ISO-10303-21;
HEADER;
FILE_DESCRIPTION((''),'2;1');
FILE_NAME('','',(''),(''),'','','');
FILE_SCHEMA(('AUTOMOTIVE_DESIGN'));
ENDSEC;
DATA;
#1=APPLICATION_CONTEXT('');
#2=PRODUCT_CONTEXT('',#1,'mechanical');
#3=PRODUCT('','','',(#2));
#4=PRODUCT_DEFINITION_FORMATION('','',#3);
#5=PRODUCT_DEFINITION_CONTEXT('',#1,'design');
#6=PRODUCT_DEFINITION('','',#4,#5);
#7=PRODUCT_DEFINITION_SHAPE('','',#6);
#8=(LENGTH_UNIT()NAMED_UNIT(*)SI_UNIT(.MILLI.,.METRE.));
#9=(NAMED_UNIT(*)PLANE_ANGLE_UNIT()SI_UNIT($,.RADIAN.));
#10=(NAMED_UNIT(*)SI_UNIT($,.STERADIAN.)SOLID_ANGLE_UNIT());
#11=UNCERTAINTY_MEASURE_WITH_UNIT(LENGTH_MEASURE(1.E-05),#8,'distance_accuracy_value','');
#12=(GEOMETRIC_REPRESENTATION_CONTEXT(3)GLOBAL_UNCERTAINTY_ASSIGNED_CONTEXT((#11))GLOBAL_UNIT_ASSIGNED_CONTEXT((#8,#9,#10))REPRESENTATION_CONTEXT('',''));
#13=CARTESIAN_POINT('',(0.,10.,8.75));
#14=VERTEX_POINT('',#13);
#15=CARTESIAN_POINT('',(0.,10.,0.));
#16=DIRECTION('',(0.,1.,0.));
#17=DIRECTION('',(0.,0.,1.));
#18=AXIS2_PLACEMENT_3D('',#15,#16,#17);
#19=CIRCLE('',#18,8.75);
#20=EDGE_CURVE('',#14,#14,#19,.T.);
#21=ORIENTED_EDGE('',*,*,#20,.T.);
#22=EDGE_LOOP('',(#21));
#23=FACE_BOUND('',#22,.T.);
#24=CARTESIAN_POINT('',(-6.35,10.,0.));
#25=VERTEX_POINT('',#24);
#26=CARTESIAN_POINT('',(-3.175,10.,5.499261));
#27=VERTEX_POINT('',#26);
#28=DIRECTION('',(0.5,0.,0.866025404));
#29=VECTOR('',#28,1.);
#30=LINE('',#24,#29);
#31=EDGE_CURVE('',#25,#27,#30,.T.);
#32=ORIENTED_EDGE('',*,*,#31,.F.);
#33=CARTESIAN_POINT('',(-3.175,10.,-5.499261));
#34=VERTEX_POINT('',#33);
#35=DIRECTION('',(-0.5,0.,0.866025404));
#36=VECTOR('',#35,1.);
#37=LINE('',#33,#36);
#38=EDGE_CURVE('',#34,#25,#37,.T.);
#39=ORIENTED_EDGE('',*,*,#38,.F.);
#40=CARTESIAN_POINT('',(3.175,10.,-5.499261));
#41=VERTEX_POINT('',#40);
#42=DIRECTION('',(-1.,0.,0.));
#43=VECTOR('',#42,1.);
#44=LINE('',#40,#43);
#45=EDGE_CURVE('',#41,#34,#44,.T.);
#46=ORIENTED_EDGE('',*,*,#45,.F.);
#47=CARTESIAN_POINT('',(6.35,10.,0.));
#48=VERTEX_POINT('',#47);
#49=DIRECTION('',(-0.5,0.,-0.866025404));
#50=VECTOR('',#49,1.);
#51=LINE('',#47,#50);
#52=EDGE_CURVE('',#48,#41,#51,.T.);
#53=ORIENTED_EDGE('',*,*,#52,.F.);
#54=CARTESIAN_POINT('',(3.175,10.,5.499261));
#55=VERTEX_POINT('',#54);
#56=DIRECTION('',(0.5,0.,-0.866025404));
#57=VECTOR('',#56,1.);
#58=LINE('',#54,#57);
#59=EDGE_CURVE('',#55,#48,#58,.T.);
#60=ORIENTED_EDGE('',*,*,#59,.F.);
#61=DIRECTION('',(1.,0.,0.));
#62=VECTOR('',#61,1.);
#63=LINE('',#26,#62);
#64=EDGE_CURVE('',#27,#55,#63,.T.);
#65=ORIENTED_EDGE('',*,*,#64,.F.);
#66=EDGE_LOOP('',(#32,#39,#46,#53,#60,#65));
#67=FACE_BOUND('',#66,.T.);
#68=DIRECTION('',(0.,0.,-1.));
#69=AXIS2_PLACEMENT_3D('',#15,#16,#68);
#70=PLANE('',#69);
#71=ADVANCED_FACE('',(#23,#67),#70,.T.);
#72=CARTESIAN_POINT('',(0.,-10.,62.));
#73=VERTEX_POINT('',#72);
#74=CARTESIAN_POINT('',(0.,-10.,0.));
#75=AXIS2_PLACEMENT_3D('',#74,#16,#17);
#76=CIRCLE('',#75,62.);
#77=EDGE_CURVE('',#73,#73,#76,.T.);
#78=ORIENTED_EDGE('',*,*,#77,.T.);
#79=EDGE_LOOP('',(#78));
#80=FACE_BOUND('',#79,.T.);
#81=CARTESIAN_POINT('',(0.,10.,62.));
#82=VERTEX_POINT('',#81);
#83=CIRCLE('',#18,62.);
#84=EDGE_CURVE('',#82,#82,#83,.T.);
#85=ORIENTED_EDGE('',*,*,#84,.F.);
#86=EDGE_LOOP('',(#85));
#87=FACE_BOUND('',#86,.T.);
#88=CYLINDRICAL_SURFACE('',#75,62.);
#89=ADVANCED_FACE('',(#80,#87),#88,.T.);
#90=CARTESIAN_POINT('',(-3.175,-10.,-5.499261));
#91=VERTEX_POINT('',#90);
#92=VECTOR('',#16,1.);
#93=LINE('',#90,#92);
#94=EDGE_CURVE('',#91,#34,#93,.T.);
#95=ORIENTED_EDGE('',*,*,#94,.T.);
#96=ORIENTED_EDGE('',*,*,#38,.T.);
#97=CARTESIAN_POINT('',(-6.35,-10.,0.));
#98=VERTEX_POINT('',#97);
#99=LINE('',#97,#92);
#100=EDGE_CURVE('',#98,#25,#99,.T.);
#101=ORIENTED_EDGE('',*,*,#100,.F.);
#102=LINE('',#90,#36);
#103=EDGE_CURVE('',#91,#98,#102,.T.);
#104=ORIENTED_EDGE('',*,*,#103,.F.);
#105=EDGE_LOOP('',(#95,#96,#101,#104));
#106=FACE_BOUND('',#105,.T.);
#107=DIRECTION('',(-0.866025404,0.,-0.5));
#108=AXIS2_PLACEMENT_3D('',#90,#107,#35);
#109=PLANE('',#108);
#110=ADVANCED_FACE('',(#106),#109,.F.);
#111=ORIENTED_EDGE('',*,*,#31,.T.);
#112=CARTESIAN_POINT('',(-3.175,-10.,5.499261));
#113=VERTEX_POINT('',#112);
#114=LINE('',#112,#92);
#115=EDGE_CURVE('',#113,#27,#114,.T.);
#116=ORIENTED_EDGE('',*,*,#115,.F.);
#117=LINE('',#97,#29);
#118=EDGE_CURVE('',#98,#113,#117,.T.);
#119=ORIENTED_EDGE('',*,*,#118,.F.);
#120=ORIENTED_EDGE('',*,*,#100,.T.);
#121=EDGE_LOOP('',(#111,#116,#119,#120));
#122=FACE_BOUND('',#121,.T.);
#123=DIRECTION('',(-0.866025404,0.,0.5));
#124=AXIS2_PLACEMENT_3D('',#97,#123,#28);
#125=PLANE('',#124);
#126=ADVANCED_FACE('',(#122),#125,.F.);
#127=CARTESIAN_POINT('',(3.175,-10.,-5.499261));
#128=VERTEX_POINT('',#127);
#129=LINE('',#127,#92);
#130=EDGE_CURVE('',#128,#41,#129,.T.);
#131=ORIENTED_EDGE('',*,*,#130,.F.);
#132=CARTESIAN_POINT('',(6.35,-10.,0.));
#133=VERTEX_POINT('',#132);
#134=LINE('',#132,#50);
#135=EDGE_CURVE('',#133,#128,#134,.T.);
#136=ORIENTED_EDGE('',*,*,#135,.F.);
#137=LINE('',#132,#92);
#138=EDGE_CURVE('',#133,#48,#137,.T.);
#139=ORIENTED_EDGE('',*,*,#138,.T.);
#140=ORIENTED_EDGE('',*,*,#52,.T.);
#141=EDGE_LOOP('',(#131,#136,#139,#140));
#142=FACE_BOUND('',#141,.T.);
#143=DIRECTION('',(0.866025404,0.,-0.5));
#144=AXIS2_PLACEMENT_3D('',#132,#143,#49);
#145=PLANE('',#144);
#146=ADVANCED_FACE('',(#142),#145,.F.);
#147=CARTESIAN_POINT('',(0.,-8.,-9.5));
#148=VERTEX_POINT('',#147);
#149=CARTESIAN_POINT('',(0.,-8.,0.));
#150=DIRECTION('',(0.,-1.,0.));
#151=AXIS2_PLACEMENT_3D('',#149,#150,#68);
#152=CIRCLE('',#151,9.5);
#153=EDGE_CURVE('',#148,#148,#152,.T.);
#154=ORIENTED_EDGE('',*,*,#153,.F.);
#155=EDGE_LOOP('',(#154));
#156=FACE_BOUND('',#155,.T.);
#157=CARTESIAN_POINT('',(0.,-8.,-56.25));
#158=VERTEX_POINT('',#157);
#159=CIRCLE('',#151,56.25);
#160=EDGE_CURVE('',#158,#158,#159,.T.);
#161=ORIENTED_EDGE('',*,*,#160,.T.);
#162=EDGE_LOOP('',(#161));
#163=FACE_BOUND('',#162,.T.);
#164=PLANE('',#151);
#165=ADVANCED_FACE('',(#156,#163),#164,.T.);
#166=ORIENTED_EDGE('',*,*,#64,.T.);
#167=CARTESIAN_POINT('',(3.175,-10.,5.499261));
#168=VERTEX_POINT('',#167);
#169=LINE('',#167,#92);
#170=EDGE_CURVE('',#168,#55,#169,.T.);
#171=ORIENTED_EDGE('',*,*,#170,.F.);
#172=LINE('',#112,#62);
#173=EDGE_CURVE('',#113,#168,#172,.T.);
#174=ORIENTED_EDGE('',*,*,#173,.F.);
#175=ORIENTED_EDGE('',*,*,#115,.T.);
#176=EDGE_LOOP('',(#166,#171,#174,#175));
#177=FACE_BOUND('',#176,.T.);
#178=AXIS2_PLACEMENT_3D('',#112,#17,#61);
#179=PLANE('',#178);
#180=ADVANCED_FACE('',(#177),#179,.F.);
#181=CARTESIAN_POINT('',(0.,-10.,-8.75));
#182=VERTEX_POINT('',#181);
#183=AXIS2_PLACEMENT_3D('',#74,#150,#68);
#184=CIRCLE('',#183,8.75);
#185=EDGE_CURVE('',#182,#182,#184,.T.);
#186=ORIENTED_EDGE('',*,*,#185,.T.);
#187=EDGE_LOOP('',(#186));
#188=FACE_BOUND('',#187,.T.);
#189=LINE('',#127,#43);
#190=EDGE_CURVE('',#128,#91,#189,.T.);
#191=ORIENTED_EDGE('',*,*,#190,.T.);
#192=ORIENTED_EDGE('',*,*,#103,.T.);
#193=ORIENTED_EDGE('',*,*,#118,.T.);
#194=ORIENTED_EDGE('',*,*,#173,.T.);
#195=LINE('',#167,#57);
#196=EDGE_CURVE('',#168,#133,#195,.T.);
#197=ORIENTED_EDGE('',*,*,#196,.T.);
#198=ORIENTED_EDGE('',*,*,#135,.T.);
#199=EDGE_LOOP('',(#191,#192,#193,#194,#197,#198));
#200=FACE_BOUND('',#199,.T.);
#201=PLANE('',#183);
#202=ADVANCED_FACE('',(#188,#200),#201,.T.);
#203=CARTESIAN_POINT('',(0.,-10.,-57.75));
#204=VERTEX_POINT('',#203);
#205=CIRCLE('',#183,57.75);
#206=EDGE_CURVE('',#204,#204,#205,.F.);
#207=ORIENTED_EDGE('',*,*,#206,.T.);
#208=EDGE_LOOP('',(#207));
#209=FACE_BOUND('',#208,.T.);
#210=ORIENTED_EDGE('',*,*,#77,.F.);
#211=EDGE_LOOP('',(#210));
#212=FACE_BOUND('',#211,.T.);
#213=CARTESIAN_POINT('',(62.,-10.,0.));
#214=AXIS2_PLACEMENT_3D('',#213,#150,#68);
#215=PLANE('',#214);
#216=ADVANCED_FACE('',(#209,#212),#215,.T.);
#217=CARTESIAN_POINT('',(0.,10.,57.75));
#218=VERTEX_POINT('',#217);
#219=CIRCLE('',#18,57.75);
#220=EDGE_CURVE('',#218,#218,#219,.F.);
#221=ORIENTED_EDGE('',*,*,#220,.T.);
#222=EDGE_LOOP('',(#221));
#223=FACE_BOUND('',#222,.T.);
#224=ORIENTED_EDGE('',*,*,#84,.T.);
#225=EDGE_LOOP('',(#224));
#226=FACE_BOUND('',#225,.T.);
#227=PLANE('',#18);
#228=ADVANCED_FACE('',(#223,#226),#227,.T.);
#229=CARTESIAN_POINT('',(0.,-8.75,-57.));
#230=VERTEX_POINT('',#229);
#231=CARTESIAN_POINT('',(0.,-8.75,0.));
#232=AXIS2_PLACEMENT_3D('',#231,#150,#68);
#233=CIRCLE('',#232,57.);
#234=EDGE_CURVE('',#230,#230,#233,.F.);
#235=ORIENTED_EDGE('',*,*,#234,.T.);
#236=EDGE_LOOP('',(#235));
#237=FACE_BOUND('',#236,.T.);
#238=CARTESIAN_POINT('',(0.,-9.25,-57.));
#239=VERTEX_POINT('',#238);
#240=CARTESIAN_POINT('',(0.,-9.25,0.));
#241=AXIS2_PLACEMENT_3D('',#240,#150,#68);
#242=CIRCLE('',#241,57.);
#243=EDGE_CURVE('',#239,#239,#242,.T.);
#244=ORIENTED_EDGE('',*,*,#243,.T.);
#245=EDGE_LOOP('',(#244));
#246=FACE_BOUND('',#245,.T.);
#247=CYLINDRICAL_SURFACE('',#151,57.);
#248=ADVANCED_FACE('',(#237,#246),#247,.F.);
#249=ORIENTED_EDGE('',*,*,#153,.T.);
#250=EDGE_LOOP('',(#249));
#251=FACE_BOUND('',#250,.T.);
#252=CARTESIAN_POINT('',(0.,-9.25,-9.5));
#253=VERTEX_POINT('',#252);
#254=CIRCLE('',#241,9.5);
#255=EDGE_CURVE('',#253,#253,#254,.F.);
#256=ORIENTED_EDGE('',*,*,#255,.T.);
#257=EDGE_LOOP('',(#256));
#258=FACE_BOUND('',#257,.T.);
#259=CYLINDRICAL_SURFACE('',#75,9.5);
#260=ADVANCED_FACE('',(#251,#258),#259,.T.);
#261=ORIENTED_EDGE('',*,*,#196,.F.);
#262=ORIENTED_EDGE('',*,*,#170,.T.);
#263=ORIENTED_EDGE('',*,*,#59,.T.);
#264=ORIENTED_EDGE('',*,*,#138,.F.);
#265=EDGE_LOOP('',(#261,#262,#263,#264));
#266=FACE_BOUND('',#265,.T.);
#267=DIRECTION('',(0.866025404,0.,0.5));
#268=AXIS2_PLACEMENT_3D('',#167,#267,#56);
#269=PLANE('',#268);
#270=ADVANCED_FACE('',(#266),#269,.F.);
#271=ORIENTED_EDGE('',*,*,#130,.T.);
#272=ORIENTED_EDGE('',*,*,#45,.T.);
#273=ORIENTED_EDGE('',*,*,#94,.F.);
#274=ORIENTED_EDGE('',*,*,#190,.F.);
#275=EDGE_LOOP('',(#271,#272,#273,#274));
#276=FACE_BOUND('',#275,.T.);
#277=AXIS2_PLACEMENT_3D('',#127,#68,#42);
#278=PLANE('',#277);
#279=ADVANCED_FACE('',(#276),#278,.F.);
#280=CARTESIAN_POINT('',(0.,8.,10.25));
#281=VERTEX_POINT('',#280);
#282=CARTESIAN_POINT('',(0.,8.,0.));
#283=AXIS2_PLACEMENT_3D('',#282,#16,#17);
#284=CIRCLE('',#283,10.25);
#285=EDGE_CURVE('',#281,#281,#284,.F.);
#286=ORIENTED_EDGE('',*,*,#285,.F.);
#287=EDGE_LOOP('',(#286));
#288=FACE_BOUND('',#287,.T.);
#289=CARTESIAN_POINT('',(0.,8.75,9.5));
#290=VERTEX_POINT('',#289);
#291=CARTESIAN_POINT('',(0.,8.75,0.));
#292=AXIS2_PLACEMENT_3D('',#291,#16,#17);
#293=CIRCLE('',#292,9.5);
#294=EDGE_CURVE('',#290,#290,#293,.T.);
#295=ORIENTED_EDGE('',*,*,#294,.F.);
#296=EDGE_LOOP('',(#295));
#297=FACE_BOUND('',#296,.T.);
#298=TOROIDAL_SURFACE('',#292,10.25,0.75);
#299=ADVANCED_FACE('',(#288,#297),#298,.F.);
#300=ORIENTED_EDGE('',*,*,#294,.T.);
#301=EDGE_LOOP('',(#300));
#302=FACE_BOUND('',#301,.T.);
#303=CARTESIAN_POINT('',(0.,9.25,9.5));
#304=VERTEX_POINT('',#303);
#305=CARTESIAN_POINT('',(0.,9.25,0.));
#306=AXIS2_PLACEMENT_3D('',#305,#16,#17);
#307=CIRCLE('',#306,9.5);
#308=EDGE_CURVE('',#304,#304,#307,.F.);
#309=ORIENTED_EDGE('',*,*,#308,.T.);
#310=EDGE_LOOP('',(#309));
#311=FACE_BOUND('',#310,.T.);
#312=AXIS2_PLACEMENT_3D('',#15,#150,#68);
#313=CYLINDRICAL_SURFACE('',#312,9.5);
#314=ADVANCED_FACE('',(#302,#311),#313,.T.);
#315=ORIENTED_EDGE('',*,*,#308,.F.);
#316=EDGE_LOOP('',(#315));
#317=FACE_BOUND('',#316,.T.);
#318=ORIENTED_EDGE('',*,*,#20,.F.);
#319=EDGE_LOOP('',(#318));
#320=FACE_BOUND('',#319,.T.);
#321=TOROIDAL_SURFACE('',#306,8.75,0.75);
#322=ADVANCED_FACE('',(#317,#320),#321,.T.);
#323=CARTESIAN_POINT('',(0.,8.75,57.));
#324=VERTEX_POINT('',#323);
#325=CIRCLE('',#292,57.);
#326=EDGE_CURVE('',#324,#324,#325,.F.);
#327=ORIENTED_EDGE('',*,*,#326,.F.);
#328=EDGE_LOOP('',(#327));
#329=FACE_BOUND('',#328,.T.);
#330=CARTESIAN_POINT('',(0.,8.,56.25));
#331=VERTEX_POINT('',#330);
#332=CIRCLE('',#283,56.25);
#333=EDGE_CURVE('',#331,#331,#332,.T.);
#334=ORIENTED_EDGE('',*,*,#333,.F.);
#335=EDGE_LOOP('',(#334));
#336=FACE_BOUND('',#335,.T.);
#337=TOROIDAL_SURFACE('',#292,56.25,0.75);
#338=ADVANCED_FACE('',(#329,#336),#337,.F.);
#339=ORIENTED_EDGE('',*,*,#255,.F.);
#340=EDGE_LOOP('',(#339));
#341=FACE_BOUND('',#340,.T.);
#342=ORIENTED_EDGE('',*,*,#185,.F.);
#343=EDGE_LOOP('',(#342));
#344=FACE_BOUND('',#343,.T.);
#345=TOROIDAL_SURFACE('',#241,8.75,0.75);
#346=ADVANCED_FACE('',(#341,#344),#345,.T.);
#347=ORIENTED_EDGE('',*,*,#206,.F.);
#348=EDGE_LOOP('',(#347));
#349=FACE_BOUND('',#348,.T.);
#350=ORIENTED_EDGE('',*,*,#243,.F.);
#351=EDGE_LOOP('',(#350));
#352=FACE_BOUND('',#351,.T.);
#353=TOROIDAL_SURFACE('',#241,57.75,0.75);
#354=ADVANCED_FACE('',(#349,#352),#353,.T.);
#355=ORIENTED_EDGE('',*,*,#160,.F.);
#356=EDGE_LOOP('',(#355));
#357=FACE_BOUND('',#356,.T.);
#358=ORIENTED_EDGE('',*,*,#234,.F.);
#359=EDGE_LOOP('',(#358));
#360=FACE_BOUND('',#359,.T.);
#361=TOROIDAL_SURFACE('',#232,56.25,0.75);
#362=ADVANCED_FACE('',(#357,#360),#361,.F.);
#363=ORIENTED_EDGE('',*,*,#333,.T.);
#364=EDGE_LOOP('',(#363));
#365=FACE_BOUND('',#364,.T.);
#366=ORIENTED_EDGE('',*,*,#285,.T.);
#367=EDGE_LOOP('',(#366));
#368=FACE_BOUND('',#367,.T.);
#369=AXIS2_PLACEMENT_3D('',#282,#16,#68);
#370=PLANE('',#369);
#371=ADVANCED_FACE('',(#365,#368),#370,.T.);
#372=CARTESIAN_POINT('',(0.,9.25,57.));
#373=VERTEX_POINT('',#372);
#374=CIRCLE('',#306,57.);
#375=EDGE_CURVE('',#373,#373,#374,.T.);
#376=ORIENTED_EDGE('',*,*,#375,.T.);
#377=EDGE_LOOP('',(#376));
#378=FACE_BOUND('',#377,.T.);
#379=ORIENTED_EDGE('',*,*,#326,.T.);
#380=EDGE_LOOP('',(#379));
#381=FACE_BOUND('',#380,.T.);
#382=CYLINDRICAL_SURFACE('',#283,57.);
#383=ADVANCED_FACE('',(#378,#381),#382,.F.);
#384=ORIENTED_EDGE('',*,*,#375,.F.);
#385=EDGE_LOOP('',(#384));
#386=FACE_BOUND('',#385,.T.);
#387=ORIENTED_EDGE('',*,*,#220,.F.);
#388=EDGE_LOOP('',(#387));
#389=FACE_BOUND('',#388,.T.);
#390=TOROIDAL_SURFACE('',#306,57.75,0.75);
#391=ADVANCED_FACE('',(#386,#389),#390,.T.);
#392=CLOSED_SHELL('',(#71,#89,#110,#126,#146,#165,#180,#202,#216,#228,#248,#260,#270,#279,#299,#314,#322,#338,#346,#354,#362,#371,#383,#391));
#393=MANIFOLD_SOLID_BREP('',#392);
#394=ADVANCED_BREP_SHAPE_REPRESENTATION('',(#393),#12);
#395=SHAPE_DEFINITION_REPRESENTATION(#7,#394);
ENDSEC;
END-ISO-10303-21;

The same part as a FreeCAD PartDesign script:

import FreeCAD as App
import Part
import Sketcher
Q = App.Units.Quantity


def edges_at(feature, points):
    """Names of the edges that pass closest to the given points."""
    edges = feature.Shape.Edges
    near = lambda p: min(range(len(edges)), key=lambda i: edges[i].distToShape(Part.Vertex(*p))[0])
    return sorted({f"Edge{near(p) + 1}" for p in points})


def add_polygon(sketch, points):
    """Adds a closed chain of lines whose ends are joined by coincident constraints."""
    first, n = sketch.GeometryCount, len(points)
    for a, b in zip(points, points[1:] + points[:1]):
        sketch.addGeometry(Part.LineSegment(App.Vector(*a, 0), App.Vector(*b, 0)), False)
    for i in range(n):
        sketch.addConstraint(Sketcher.Constraint("Coincident", first + i, 2, first + (i + 1) % n, 1))

doc = App.newDocument("Part")
body = doc.addObject("PartDesign::Body", "Body")

# Sketch on XY plane
sketch1 = body.newObject("Sketcher::SketchObject", "Sketch")
sketch1.AttachmentSupport = (doc.getObject("XY_Plane"), [""])
sketch1.MapMode = "FlatFace"
add_polygon(sketch1, [(62, 10), (62, -10), (0, -10), (0, 10)])  # lines 0-3
sketch1.addConstraint(Sketcher.Constraint("Vertical", 0))
sketch1.addConstraint(Sketcher.Constraint("Horizontal", 1))
sketch1.addConstraint(Sketcher.Constraint("Vertical", 2))
sketch1.addConstraint(Sketcher.Constraint("Horizontal", 3))
sketch1.addConstraint(Sketcher.Constraint("Symmetric", 1, 2, 2, 2, -1, 1))
sketch1.addConstraint(Sketcher.Constraint("DistanceX", 1, 2, 1, 1, 62.0))
sketch1.addConstraint(Sketcher.Constraint("DistanceY", 0, 2, 0, 1, 20.0))
revolution = body.newObject("PartDesign::Revolution", "Revolution")
revolution.Profile = sketch1
revolution.ReferenceAxis = (sketch1, ["V_Axis"])
revolution.Angle = 360

# Sketch on XZ plane
sketch2 = body.newObject("Sketcher::SketchObject", "Sketch001")
sketch2.AttachmentSupport = (doc.getObject("XZ_Plane"), [""])
sketch2.MapMode = "FlatFace"
sketch2.AttachmentOffset = App.Placement(App.Vector(0, 0, 10), App.Rotation())
sketch2.addGeometry(Part.Circle(App.Vector(0, 0, 0), App.Vector(0, 0, 1), 57), False)
sketch2.addConstraint(Sketcher.Constraint("Coincident", 0, 3, -1, 1))
sketch2.addConstraint(Sketcher.Constraint("Diameter", 0, 114.0))
pocket1 = body.newObject("PartDesign::Pocket", "Pocket")
pocket1.Profile = sketch2
pocket1.Length = 2

# Sketch on XZ plane
sketch3 = body.newObject("Sketcher::SketchObject", "Sketch002")
sketch3.AttachmentSupport = (doc.getObject("XZ_Plane"), [""])
sketch3.MapMode = "FlatFace"
sketch3.AttachmentOffset = App.Placement(App.Vector(0, 0, 8), App.Rotation())
sketch3.addGeometry(Part.Circle(App.Vector(0, 0, 0), App.Vector(0, 0, 1), 10), False)
sketch3.addConstraint(Sketcher.Constraint("Coincident", 0, 3, -1, 1))
sketch3.addConstraint(Sketcher.Constraint("Diameter", 0, 19.0))
pad1 = body.newObject("PartDesign::Pad", "Pad")
pad1.Profile = sketch3
pad1.Length = 2
doc.recompute()

mirrored = body.newObject("PartDesign::Mirrored", "Mirrored")
mirrored.Originals = [pocket1, pad1]
mirrored.MirrorPlane = (doc.getObject("XZ_Plane"), [""])
body.Tip = mirrored

# Sketch on XZ plane
sketch4 = body.newObject("Sketcher::SketchObject", "Sketch003")
sketch4.AttachmentSupport = (doc.getObject("XZ_Plane"), [""])
sketch4.MapMode = "FlatFace"
sketch4.AttachmentOffset = App.Placement(App.Vector(0, 0, 8), App.Rotation())
add_polygon(sketch4, [(3, -5), (-3, -5), (-6, 0), (-3, 5), (3, 5), (6, 0)])  # lines 0-5
sketch4.addConstraint(Sketcher.Constraint("Horizontal", 0))
sketch4.addConstraint(Sketcher.Constraint("Horizontal", 3))
sketch4.addConstraint(Sketcher.Constraint("Symmetric", 0, 2, 3, 2, -1, 1))
sketch4.addConstraint(Sketcher.Constraint("Symmetric", 1, 2, 4, 2, -1, 1))
sketch4.addConstraint(Sketcher.Constraint("PointOnObject", 1, 2, -1))
sketch4.addConstraint(Sketcher.Constraint("Parallel", 2, 5))
sketch4.addConstraint(Sketcher.Constraint("Vertical", 0, 2, 2, 2))
sketch4.addConstraint(Sketcher.Constraint("Angle", 1, Q("120 deg")))
sketch4.addConstraint(Sketcher.Constraint("DistanceX", 0, 2, 0, 1, 6.35))
sketch4.addConstraint(Sketcher.Constraint("DistanceX", 1, 2, 4, 2, 12.7))
pocket2 = body.newObject("PartDesign::Pocket", "Pocket001")
pocket2.Profile = sketch4
pocket2.Type = "ThroughAll"
pocket2.Midplane = True
doc.recompute()

fillet = body.newObject("PartDesign::Fillet", "Fillet")
fillet.Base = (pocket2, edges_at(pocket2, [
    (-57, -10, 0),
    (-9.5, -10, 0),
    (-57, 10, 0),
    (-57, 8, 0),
    (-9.5, 8, 0),
    (-9.5, 10, 0),
    (-57, -8, 0),
]))
fillet.Radius = 0.75

doc.recompute()
